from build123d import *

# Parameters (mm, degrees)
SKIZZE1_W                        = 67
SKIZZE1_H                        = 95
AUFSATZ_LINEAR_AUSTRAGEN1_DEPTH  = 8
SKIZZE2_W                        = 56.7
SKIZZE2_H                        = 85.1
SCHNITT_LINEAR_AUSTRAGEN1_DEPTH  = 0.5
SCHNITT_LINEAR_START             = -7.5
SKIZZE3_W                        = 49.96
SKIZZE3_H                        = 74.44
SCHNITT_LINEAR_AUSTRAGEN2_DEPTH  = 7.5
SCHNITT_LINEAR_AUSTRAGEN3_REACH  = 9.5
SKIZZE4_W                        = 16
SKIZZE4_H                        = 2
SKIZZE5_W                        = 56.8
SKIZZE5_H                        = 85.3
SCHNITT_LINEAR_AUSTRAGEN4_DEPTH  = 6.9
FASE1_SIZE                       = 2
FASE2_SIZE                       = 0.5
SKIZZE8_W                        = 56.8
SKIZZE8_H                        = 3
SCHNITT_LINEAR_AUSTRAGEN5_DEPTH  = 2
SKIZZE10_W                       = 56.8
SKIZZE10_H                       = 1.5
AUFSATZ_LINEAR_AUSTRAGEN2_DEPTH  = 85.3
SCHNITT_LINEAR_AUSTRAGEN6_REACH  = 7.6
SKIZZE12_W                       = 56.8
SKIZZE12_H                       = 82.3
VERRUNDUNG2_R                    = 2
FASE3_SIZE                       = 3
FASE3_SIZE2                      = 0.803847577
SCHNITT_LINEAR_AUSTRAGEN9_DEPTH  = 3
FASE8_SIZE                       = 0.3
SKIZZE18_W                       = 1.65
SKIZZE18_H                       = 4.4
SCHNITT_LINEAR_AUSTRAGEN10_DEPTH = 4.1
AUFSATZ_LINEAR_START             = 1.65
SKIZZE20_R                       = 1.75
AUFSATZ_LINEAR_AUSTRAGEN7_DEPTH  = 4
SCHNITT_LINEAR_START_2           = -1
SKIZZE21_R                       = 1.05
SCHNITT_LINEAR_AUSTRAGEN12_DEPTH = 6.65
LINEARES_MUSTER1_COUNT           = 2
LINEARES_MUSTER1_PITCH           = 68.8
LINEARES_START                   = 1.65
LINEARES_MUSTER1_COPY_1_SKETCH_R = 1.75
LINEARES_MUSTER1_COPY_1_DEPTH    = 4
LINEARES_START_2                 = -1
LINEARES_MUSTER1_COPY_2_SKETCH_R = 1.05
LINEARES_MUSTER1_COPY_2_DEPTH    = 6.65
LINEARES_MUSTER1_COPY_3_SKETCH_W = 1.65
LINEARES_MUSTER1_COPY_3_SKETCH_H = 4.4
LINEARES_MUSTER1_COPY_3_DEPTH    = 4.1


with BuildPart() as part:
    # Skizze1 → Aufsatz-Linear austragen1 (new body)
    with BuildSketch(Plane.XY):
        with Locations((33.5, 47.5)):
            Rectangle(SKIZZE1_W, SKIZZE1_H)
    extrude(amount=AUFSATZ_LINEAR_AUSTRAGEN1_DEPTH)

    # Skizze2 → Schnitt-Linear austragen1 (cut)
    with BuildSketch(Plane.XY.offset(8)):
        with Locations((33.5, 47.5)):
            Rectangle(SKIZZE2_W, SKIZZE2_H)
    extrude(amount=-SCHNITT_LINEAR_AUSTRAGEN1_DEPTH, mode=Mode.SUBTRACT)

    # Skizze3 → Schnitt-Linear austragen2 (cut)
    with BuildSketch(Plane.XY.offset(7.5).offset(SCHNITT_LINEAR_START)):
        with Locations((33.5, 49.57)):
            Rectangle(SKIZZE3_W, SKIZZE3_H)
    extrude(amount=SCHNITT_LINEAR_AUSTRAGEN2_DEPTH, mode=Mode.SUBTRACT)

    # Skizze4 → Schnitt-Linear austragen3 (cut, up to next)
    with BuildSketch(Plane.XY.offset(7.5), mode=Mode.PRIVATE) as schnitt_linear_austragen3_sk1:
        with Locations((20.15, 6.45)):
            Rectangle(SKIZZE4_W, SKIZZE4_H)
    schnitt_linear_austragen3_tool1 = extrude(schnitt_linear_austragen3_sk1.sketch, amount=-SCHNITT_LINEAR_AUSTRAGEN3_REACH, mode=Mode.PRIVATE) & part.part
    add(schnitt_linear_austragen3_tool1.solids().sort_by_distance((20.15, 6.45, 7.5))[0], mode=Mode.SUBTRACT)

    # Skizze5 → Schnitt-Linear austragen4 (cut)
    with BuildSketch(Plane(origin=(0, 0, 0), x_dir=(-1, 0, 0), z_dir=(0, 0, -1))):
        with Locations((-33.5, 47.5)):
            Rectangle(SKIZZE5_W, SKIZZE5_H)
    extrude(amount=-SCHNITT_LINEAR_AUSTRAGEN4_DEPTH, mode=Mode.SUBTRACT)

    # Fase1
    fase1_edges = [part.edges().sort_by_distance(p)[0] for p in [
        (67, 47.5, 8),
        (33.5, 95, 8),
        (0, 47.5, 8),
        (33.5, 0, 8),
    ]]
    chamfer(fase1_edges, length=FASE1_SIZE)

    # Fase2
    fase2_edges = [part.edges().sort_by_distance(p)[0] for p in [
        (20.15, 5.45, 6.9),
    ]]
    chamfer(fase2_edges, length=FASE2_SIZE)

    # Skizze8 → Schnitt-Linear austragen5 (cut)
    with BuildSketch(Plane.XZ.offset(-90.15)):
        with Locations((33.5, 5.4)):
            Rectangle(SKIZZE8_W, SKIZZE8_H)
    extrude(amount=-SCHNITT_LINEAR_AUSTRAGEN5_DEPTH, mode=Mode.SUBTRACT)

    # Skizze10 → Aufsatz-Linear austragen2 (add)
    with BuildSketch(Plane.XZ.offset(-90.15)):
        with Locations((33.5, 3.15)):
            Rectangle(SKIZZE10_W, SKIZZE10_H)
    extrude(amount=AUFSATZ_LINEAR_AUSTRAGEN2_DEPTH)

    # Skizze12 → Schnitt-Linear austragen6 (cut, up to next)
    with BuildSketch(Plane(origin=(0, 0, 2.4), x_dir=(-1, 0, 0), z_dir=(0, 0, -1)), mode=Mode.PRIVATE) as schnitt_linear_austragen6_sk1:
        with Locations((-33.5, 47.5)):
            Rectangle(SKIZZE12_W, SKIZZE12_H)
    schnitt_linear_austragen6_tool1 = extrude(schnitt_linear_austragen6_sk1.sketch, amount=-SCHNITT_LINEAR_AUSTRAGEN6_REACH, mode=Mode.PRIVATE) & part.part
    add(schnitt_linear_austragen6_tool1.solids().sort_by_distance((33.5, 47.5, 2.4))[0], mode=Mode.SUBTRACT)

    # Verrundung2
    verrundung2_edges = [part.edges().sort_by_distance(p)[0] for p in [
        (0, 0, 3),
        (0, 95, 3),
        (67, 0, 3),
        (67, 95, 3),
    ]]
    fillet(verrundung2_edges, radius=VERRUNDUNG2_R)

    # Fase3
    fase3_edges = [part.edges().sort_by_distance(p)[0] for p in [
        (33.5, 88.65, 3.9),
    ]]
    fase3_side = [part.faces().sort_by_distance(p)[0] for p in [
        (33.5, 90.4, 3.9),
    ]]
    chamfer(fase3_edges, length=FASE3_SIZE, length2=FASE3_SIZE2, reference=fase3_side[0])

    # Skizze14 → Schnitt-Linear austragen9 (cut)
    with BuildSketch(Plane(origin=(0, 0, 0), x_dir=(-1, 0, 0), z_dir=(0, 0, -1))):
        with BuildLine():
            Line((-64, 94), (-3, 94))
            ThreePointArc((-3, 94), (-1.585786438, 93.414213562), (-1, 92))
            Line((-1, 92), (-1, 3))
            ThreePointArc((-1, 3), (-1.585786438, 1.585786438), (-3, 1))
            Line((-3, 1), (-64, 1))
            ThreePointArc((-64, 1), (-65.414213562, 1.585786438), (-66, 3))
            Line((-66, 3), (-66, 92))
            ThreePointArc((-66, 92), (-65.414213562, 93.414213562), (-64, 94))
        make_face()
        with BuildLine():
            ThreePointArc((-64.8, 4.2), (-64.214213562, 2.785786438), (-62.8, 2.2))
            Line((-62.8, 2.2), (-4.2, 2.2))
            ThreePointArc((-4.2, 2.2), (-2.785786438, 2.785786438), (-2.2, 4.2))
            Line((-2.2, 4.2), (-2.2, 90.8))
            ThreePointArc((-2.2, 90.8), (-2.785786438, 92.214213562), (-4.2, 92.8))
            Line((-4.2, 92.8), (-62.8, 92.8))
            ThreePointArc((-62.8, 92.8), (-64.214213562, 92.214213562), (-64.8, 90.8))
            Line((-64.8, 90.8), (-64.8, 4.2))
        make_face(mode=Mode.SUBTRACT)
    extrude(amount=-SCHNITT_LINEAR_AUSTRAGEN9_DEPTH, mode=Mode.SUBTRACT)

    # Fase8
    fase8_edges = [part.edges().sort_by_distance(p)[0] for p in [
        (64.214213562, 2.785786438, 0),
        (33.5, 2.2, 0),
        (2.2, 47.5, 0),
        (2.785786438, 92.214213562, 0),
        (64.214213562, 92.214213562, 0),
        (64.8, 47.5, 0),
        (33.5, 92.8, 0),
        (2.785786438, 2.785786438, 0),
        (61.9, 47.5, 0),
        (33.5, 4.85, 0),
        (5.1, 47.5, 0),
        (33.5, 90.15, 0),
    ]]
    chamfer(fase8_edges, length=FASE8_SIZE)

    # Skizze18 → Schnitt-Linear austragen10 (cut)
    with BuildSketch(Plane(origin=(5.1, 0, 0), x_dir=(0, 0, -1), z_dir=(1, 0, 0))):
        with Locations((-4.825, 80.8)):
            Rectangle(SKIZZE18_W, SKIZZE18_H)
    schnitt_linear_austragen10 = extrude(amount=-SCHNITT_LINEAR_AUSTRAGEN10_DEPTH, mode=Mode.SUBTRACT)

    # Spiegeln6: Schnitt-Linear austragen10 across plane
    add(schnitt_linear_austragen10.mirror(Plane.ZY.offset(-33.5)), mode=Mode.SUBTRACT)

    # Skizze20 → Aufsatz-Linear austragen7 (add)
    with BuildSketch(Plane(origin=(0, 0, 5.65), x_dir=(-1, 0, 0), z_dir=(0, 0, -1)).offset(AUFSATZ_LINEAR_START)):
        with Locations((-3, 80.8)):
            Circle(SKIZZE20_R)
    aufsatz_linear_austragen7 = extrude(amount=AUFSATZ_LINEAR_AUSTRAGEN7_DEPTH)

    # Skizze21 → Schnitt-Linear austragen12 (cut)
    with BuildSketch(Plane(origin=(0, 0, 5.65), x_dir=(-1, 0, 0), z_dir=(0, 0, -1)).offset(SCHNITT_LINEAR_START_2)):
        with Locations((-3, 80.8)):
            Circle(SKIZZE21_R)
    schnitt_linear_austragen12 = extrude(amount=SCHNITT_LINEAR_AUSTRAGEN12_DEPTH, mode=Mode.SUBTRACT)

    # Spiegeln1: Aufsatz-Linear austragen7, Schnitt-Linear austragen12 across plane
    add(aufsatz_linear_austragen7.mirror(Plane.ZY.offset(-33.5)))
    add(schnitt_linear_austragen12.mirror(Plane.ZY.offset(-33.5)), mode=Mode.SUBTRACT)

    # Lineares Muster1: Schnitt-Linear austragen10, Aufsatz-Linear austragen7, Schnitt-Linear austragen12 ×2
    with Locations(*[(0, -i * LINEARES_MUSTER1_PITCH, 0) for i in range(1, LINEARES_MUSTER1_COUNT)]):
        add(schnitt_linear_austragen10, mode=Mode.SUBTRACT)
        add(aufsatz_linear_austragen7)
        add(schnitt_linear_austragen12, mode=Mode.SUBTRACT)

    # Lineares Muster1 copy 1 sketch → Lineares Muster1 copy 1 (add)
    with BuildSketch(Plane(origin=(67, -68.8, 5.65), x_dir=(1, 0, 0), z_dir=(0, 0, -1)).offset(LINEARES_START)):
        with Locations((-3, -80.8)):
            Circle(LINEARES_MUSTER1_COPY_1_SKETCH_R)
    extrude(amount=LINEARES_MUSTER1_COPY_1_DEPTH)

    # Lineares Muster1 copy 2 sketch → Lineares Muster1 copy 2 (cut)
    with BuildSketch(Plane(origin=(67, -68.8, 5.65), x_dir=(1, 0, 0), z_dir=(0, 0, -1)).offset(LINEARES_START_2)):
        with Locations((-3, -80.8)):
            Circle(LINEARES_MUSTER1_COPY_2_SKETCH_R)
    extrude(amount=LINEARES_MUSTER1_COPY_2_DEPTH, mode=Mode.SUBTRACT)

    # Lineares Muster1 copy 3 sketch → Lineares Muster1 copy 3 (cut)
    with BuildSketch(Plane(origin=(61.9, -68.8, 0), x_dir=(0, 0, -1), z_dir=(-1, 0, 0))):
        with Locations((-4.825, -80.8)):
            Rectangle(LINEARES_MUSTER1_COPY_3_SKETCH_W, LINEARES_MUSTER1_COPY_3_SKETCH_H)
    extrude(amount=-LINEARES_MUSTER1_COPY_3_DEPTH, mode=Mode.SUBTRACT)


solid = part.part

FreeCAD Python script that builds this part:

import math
import FreeCAD as App
import Part
import Sketcher
from FreeCAD import Vector
Q = App.Units.Quantity


def edges_at(feature, points):
    """Names of the edges that pass closest to the given points."""
    edges = feature.Shape.Edges
    near = lambda p: min(range(len(edges)), key=lambda i: edges[i].distToShape(Part.Vertex(*p))[0])
    return sorted({f"Edge{near(p) + 1}" for p in points})

doc = App.newDocument("Part")
params = doc.addObject("Spreadsheet::Sheet", "Params")
for row, (alias, value) in enumerate([
    ("sketch1_width", "67 mm"),
    ("sketch1_height", "95 mm"),
    ("pad1_length", "8 mm"),
    ("sketch2_width", "56.7 mm"),
    ("sketch2_height", "85.1 mm"),
    ("pocket1_length", "0.5 mm"),
    ("sketch3_width", "49.96 mm"),
    ("sketch3_height", "74.44 mm"),
    ("pocket2_length", "7.5 mm"),
    ("sketch4_width", "16 mm"),
    ("sketch4_height", "2 mm"),
    ("sketch5_width", "56.8 mm"),
    ("sketch5_height", "85.3 mm"),
    ("pocket4_length", "6.9 mm"),
    ("chamfer_size", "2 mm"),
    ("chamfer2_size", "0.5 mm"),
    ("sketch6_height", "3 mm"),
    ("sketch6_width", "56.8 mm"),
    ("pocket5_length", "2 mm"),
    ("sketch7_width", "56.8 mm"),
    ("sketch7_height", "1.5 mm"),
    ("pad2_length", "85.3 mm"),
    ("sketch8_width", "56.8 mm"),
    ("sketch8_height", "82.3 mm"),
    ("fillet_radius", "2 mm"),
    ("chamfer3_size", "3 mm"),
    ("chamfer3_size2", "0.803848 mm"),
    ("sketch9_radius", "2 mm"),
    ("sketch9_width", "61 mm"),
    ("sketch9_height", "89 mm"),
    ("sketch9_width2", "58.6 mm"),
    ("sketch9_height2", "86.6 mm"),
    ("pocket7_length", "3 mm"),
    ("chamfer4_size", "0.3 mm"),
    ("sketch10_width", "4.4 mm"),
    ("sketch10_height", "1.65 mm"),
    ("pocket8_length", "4.1 mm"),
    ("sketch11_diameter", "3.5 mm"),
    ("pad3_length", "4 mm"),
    ("sketch12_diameter", "2.1 mm"),
    ("pocket9_length", "6.65 mm"),
    ("linearpattern_pitch", "68.8 mm"),
    ("sketch13_diameter", "3.5 mm"),
    ("pad4_length", "4 mm"),
    ("sketch14_diameter", "2.1 mm"),
    ("pocket10_length", "6.65 mm"),
    ("sketch15_width", "4.4 mm"),
    ("sketch15_height", "1.65 mm"),
    ("pocket11_length", "4.1 mm"),
], start=1):
    params.set(f"A{row}", alias)
    params.set(f"B{row}", "=" + value)
    params.setAlias(f"B{row}", alias)

body = doc.addObject("PartDesign::Body", "Body")

# Sketch on XY plane
sketch1 = doc.addObject("Sketcher::SketchObject", "Sketch")
body.addObject(sketch1)
sketch1.AttachmentSupport = (doc.XY_Plane, [""])
sketch1.MapMode = "FlatFace"
sketch1.addGeometry(Part.LineSegment(Vector(0, 95, 0), Vector(0, 0, 0)), False)
sketch1.addGeometry(Part.LineSegment(Vector(0, 0, 0), Vector(67, 0, 0)), False)
sketch1.addGeometry(Part.LineSegment(Vector(67, 0, 0), Vector(67, 95, 0)), False)
sketch1.addGeometry(Part.LineSegment(Vector(67, 95, 0), Vector(0, 95, 0)), False)
sketch1.addConstraint(Sketcher.Constraint("Coincident", 0, 2, 1, 1))
sketch1.addConstraint(Sketcher.Constraint("Coincident", 1, 2, 2, 1))
sketch1.addConstraint(Sketcher.Constraint("Coincident", 2, 2, 3, 1))
sketch1.addConstraint(Sketcher.Constraint("Coincident", 3, 2, 0, 1))
sketch1.addConstraint(Sketcher.Constraint("Vertical", 0))
sketch1.addConstraint(Sketcher.Constraint("Horizontal", 1))
sketch1.addConstraint(Sketcher.Constraint("Vertical", 2))
sketch1.addConstraint(Sketcher.Constraint("Horizontal", 3))
sketch1.addConstraint(Sketcher.Constraint("Coincident", 0, 2, -1, 1))
sketch1.addConstraint(Sketcher.Constraint("DistanceX", 1, 1, 1, 2, Q("67 mm")))
sketch1.addConstraint(Sketcher.Constraint("DistanceY", 0, 2, 0, 1, Q("95 mm")))
sketch1.setExpression("Constraints[9]", "Params.sketch1_width")
sketch1.setExpression("Constraints[10]", "Params.sketch1_height")
pad1 = doc.addObject("PartDesign::Pad", "Pad")
body.addObject(pad1)
pad1.Profile = sketch1
pad1.setExpression("Length", "Params.pad1_length")

# Sketch on XY plane
sketch2 = doc.addObject("Sketcher::SketchObject", "Sketch001")
body.addObject(sketch2)
sketch2.AttachmentSupport = (doc.XY_Plane, [""])
sketch2.MapMode = "FlatFace"
sketch2.AttachmentOffset = App.Placement(Vector(0, 0, 8), App.Rotation())
sketch2.addGeometry(Part.LineSegment(Vector(5.15, 90.05, 0), Vector(5.15, 4.95, 0)), False)
sketch2.addGeometry(Part.LineSegment(Vector(5.15, 4.95, 0), Vector(61.85, 4.95, 0)), False)
sketch2.addGeometry(Part.LineSegment(Vector(61.85, 4.95, 0), Vector(61.85, 90.05, 0)), False)
sketch2.addGeometry(Part.LineSegment(Vector(61.85, 90.05, 0), Vector(5.15, 90.05, 0)), False)
sketch2.addConstraint(Sketcher.Constraint("Coincident", 0, 2, 1, 1))
sketch2.addConstraint(Sketcher.Constraint("Coincident", 1, 2, 2, 1))
sketch2.addConstraint(Sketcher.Constraint("Coincident", 2, 2, 3, 1))
sketch2.addConstraint(Sketcher.Constraint("Coincident", 3, 2, 0, 1))
sketch2.addConstraint(Sketcher.Constraint("Vertical", 0))
sketch2.addConstraint(Sketcher.Constraint("Horizontal", 1))
sketch2.addConstraint(Sketcher.Constraint("Vertical", 2))
sketch2.addConstraint(Sketcher.Constraint("Horizontal", 3))
sketch2.addConstraint(Sketcher.Constraint("DistanceX", 1, 1, 1, 2, Q("56.7 mm")))
sketch2.addConstraint(Sketcher.Constraint("DistanceY", 0, 2, 0, 1, Q("85.1 mm")))
sketch2.addConstraint(Sketcher.Constraint("DistanceX", -1, 1, 0, 2, Q("5.15 mm")))
sketch2.addConstraint(Sketcher.Constraint("DistanceY", -1, 1, 0, 2, Q("4.95 mm")))
sketch2.setExpression("Constraints[8]", "Params.sketch2_width")
sketch2.setExpression("Constraints[9]", "Params.sketch2_height")
pocket1 = doc.addObject("PartDesign::Pocket", "Pocket")
body.addObject(pocket1)
pocket1.Profile = sketch2
pocket1.setExpression("Length", "Params.pocket1_length")

# Sketch on XY plane
sketch3 = doc.addObject("Sketcher::SketchObject", "Sketch002")
body.addObject(sketch3)
sketch3.AttachmentSupport = (doc.XY_Plane, [""])
sketch3.MapMode = "FlatFace"
sketch3.addGeometry(Part.LineSegment(Vector(8.52, 86.79, 0), Vector(8.52, 12.35, 0)), False)
sketch3.addGeometry(Part.LineSegment(Vector(8.52, 12.35, 0), Vector(58.48, 12.35, 0)), False)
sketch3.addGeometry(Part.LineSegment(Vector(58.48, 12.35, 0), Vector(58.48, 86.79, 0)), False)
sketch3.addGeometry(Part.LineSegment(Vector(58.48, 86.79, 0), Vector(8.52, 86.79, 0)), False)
sketch3.addConstraint(Sketcher.Constraint("Coincident", 0, 2, 1, 1))
sketch3.addConstraint(Sketcher.Constraint("Coincident", 1, 2, 2, 1))
sketch3.addConstraint(Sketcher.Constraint("Coincident", 2, 2, 3, 1))
sketch3.addConstraint(Sketcher.Constraint("Coincident", 3, 2, 0, 1))
sketch3.addConstraint(Sketcher.Constraint("Vertical", 0))
sketch3.addConstraint(Sketcher.Constraint("Horizontal", 1))
sketch3.addConstraint(Sketcher.Constraint("Vertical", 2))
sketch3.addConstraint(Sketcher.Constraint("Horizontal", 3))
sketch3.addConstraint(Sketcher.Constraint("DistanceX", 1, 1, 1, 2, Q("49.96 mm")))
sketch3.addConstraint(Sketcher.Constraint("DistanceY", 0, 2, 0, 1, Q("74.44 mm")))
sketch3.addConstraint(Sketcher.Constraint("DistanceX", -1, 1, 0, 2, Q("8.52 mm")))
sketch3.addConstraint(Sketcher.Constraint("DistanceY", -1, 1, 0, 2, Q("12.35 mm")))
sketch3.setExpression("Constraints[8]", "Params.sketch3_width")
sketch3.setExpression("Constraints[9]", "Params.sketch3_height")
pocket2 = doc.addObject("PartDesign::Pocket", "Pocket001")
body.addObject(pocket2)
pocket2.Profile = sketch3
pocket2.setExpression("Length", "Params.pocket2_length")
pocket2.Reversed = True

# Sketch on XY plane
sketch4 = doc.addObject("Sketcher::SketchObject", "Sketch003")
body.addObject(sketch4)
sketch4.AttachmentSupport = (doc.XY_Plane, [""])
sketch4.MapMode = "FlatFace"
sketch4.AttachmentOffset = App.Placement(Vector(0, 0, 7.5), App.Rotation())
sketch4.addGeometry(Part.LineSegment(Vector(12.15, 7.45, 0), Vector(12.15, 5.45, 0)), False)
sketch4.addGeometry(Part.LineSegment(Vector(12.15, 5.45, 0), Vector(28.15, 5.45, 0)), False)
sketch4.addGeometry(Part.LineSegment(Vector(28.15, 5.45, 0), Vector(28.15, 7.45, 0)), False)
sketch4.addGeometry(Part.LineSegment(Vector(28.15, 7.45, 0), Vector(12.15, 7.45, 0)), False)
sketch4.addConstraint(Sketcher.Constraint("Coincident", 0, 2, 1, 1))
sketch4.addConstraint(Sketcher.Constraint("Coincident", 1, 2, 2, 1))
sketch4.addConstraint(Sketcher.Constraint("Coincident", 2, 2, 3, 1))
sketch4.addConstraint(Sketcher.Constraint("Coincident", 3, 2, 0, 1))
sketch4.addConstraint(Sketcher.Constraint("Vertical", 0))
sketch4.addConstraint(Sketcher.Constraint("Horizontal", 1))
sketch4.addConstraint(Sketcher.Constraint("Vertical", 2))
sketch4.addConstraint(Sketcher.Constraint("Horizontal", 3))
sketch4.addConstraint(Sketcher.Constraint("DistanceX", 1, 1, 1, 2, Q("16 mm")))
sketch4.addConstraint(Sketcher.Constraint("DistanceY", 0, 2, 0, 1, Q("2 mm")))
sketch4.addConstraint(Sketcher.Constraint("DistanceX", -1, 1, 0, 2, Q("12.15 mm")))
sketch4.addConstraint(Sketcher.Constraint("DistanceY", -1, 1, 0, 2, Q("5.45 mm")))
sketch4.setExpression("Constraints[8]", "Params.sketch4_width")
sketch4.setExpression("Constraints[9]", "Params.sketch4_height")
pocket3 = doc.addObject("PartDesign::Pocket", "Pocket002")
body.addObject(pocket3)
pocket3.Profile = sketch4
pocket3.Type = "UpToFirst"

# Sketch on XY plane
sketch5 = doc.addObject("Sketcher::SketchObject", "Sketch004")
body.addObject(sketch5)
sketch5.AttachmentSupport = (doc.XY_Plane, [""])
sketch5.MapMode = "FlatFace"
sketch5.addGeometry(Part.LineSegment(Vector(61.9, 90.15, 0), Vector(61.9, 4.85, 0)), False)
sketch5.addGeometry(Part.LineSegment(Vector(61.9, 4.85, 0), Vector(5.1, 4.85, 0)), False)
sketch5.addGeometry(Part.LineSegment(Vector(5.1, 4.85, 0), Vector(5.1, 90.15, 0)), False)
sketch5.addGeometry(Part.LineSegment(Vector(5.1, 90.15, 0), Vector(61.9, 90.15, 0)), False)
sketch5.addConstraint(Sketcher.Constraint("Coincident", 0, 2, 1, 1))
sketch5.addConstraint(Sketcher.Constraint("Coincident", 1, 2, 2, 1))
sketch5.addConstraint(Sketcher.Constraint("Coincident", 2, 2, 3, 1))
sketch5.addConstraint(Sketcher.Constraint("Coincident", 3, 2, 0, 1))
sketch5.addConstraint(Sketcher.Constraint("Vertical", 0))
sketch5.addConstraint(Sketcher.Constraint("Horizontal", 1))
sketch5.addConstraint(Sketcher.Constraint("Vertical", 2))
sketch5.addConstraint(Sketcher.Constraint("Horizontal", 3))
sketch5.addConstraint(Sketcher.Constraint("DistanceX", 1, 2, 1, 1, Q("56.8 mm")))
sketch5.addConstraint(Sketcher.Constraint("DistanceY", 0, 2, 0, 1, Q("85.3 mm")))
sketch5.addConstraint(Sketcher.Constraint("DistanceX", -1, 1, 0, 2, Q("61.9 mm")))
sketch5.addConstraint(Sketcher.Constraint("DistanceY", -1, 1, 0, 2, Q("4.85 mm")))
sketch5.setExpression("Constraints[8]", "Params.sketch5_width")
sketch5.setExpression("Constraints[9]", "Params.sketch5_height")
pocket4 = doc.addObject("PartDesign::Pocket", "Pocket003")
body.addObject(pocket4)
pocket4.Profile = sketch5
pocket4.setExpression("Length", "Params.pocket4_length")
pocket4.Reversed = True
doc.recompute()

chamfer = doc.addObject("PartDesign::Chamfer", "Chamfer")
body.addObject(chamfer)
chamfer.Base = (pocket4, edges_at(pocket4, [
    (67, 47.5, 8),
    (33.5, 95, 8),
    (0, 47.5, 8),
    (33.5, 0, 8),
]))
chamfer.setExpression("Size", "Params.chamfer_size")
doc.recompute()

chamfer2 = doc.addObject("PartDesign::Chamfer", "Chamfer001")
body.addObject(chamfer2)
chamfer2.Base = (chamfer, edges_at(chamfer, [(20.15, 5.45, 6.9)]))
chamfer2.setExpression("Size", "Params.chamfer2_size")

# Sketch on XZ plane
sketch6 = doc.addObject("Sketcher::SketchObject", "Sketch005")
body.addObject(sketch6)
sketch6.AttachmentSupport = (doc.XZ_Plane, [""])
sketch6.MapMode = "FlatFace"
sketch6.AttachmentOffset = App.Placement(Vector(0, 0, -90.15), App.Rotation())
sketch6.addGeometry(Part.LineSegment(Vector(5.1, 6.9, 0), Vector(5.1, 3.9, 0)), False)
sketch6.addGeometry(Part.LineSegment(Vector(5.1, 3.9, 0), Vector(61.9, 3.9, 0)), False)
sketch6.addGeometry(Part.LineSegment(Vector(61.9, 3.9, 0), Vector(61.9, 6.9, 0)), False)
sketch6.addGeometry(Part.LineSegment(Vector(61.9, 6.9, 0), Vector(5.1, 6.9, 0)), False)
sketch6.addConstraint(Sketcher.Constraint("Coincident", 0, 2, 1, 1))
sketch6.addConstraint(Sketcher.Constraint("Coincident", 1, 2, 2, 1))
sketch6.addConstraint(Sketcher.Constraint("Coincident", 2, 2, 3, 1))
sketch6.addConstraint(Sketcher.Constraint("Coincident", 3, 2, 0, 1))
sketch6.addConstraint(Sketcher.Constraint("Vertical", 0))
sketch6.addConstraint(Sketcher.Constraint("Horizontal", 1))
sketch6.addConstraint(Sketcher.Constraint("Vertical", 2))
sketch6.addConstraint(Sketcher.Constraint("Horizontal", 3))
sketch6.addConstraint(Sketcher.Constraint("DistanceY", 0, 2, 0, 1, Q("3 mm")))
sketch6.addConstraint(Sketcher.Constraint("DistanceX", 1, 1, 1, 2, Q("56.8 mm")))
sketch6.addConstraint(Sketcher.Constraint("DistanceX", -1, 1, 0, 2, Q("5.1 mm")))
sketch6.addConstraint(Sketcher.Constraint("DistanceY", -1, 1, 0, 2, Q("3.9 mm")))
sketch6.setExpression("Constraints[8]", "Params.sketch6_height")
sketch6.setExpression("Constraints[9]", "Params.sketch6_width")
pocket5 = doc.addObject("PartDesign::Pocket", "Pocket004")
body.addObject(pocket5)
pocket5.Profile = sketch6
pocket5.setExpression("Length", "Params.pocket5_length")

# Sketch on XZ plane
sketch7 = doc.addObject("Sketcher::SketchObject", "Sketch006")
body.addObject(sketch7)
sketch7.AttachmentSupport = (doc.XZ_Plane, [""])
sketch7.MapMode = "FlatFace"
sketch7.AttachmentOffset = App.Placement(Vector(0, 0, -90.15), App.Rotation())
sketch7.addGeometry(Part.LineSegment(Vector(5.1, 3.9, 0), Vector(5.1, 2.4, 0)), False)
sketch7.addGeometry(Part.LineSegment(Vector(5.1, 2.4, 0), Vector(61.9, 2.4, 0)), False)
sketch7.addGeometry(Part.LineSegment(Vector(61.9, 2.4, 0), Vector(61.9, 3.9, 0)), False)
sketch7.addGeometry(Part.LineSegment(Vector(61.9, 3.9, 0), Vector(5.1, 3.9, 0)), False)
sketch7.addConstraint(Sketcher.Constraint("Coincident", 0, 2, 1, 1))
sketch7.addConstraint(Sketcher.Constraint("Coincident", 1, 2, 2, 1))
sketch7.addConstraint(Sketcher.Constraint("Coincident", 2, 2, 3, 1))
sketch7.addConstraint(Sketcher.Constraint("Coincident", 3, 2, 0, 1))
sketch7.addConstraint(Sketcher.Constraint("Vertical", 0))
sketch7.addConstraint(Sketcher.Constraint("Horizontal", 1))
sketch7.addConstraint(Sketcher.Constraint("Vertical", 2))
sketch7.addConstraint(Sketcher.Constraint("Horizontal", 3))
sketch7.addConstraint(Sketcher.Constraint("DistanceX", 1, 1, 1, 2, Q("56.8 mm")))
sketch7.addConstraint(Sketcher.Constraint("DistanceY", 0, 2, 0, 1, Q("1.5 mm")))
sketch7.addConstraint(Sketcher.Constraint("DistanceX", -1, 1, 0, 2, Q("5.1 mm")))
sketch7.addConstraint(Sketcher.Constraint("DistanceY", -1, 1, 0, 2, Q("2.4 mm")))
sketch7.setExpression("Constraints[8]", "Params.sketch7_width")
sketch7.setExpression("Constraints[9]", "Params.sketch7_height")
pad2 = doc.addObject("PartDesign::Pad", "Pad001")
body.addObject(pad2)
pad2.Profile = sketch7
pad2.setExpression("Length", "Params.pad2_length")

# Sketch on XY plane
sketch8 = doc.addObject("Sketcher::SketchObject", "Sketch007")
body.addObject(sketch8)
sketch8.AttachmentSupport = (doc.XY_Plane, [""])
sketch8.MapMode = "FlatFace"
sketch8.AttachmentOffset = App.Placement(Vector(0, 0, 2.4), App.Rotation())
sketch8.addGeometry(Part.LineSegment(Vector(61.9, 88.65, 0), Vector(61.9, 6.35, 0)), False)
sketch8.addGeometry(Part.LineSegment(Vector(61.9, 6.35, 0), Vector(5.1, 6.35, 0)), False)
sketch8.addGeometry(Part.LineSegment(Vector(5.1, 6.35, 0), Vector(5.1, 88.65, 0)), False)
sketch8.addGeometry(Part.LineSegment(Vector(5.1, 88.65, 0), Vector(61.9, 88.65, 0)), False)
sketch8.addConstraint(Sketcher.Constraint("Coincident", 0, 2, 1, 1))
sketch8.addConstraint(Sketcher.Constraint("Coincident", 1, 2, 2, 1))
sketch8.addConstraint(Sketcher.Constraint("Coincident", 2, 2, 3, 1))
sketch8.addConstraint(Sketcher.Constraint("Coincident", 3, 2, 0, 1))
sketch8.addConstraint(Sketcher.Constraint("Vertical", 0))
sketch8.addConstraint(Sketcher.Constraint("Horizontal", 1))
sketch8.addConstraint(Sketcher.Constraint("Vertical", 2))
sketch8.addConstraint(Sketcher.Constraint("Horizontal", 3))
sketch8.addConstraint(Sketcher.Constraint("DistanceX", 1, 2, 1, 1, Q("56.8 mm")))
sketch8.addConstraint(Sketcher.Constraint("DistanceY", 0, 2, 0, 1, Q("82.3 mm")))
sketch8.addConstraint(Sketcher.Constraint("DistanceX", -1, 1, 0, 2, Q("61.9 mm")))
sketch8.addConstraint(Sketcher.Constraint("DistanceY", -1, 1, 0, 2, Q("6.35 mm")))
sketch8.setExpression("Constraints[8]", "Params.sketch8_width")
sketch8.setExpression("Constraints[9]", "Params.sketch8_height")
pocket6 = doc.addObject("PartDesign::Pocket", "Pocket005")
body.addObject(pocket6)
pocket6.Profile = sketch8
pocket6.Type = "UpToFirst"
pocket6.Reversed = True
doc.recompute()

fillet = doc.addObject("PartDesign::Fillet", "Fillet")
body.addObject(fillet)
fillet.Base = (pocket6, edges_at(pocket6, [
    (0, 0, 3),
    (0, 95, 3),
    (67, 0, 3),
    (67, 95, 3),
]))
fillet.setExpression("Radius", "Params.fillet_radius")
doc.recompute()

chamfer3 = doc.addObject("PartDesign::Chamfer", "Chamfer002")
body.addObject(chamfer3)
chamfer3.Base = (fillet, edges_at(fillet, [(33.5, 88.65, 3.9)]))
chamfer3.ChamferType = "Two distances"
chamfer3.setExpression("Size", "Params.chamfer3_size")
chamfer3.setExpression("Size2", "Params.chamfer3_size2")
chamfer3.FlipDirection = True

# Sketch on XY plane
sketch9 = doc.addObject("Sketcher::SketchObject", "Sketch008")
body.addObject(sketch9)
sketch9.AttachmentSupport = (doc.XY_Plane, [""])
sketch9.MapMode = "FlatFace"
sketch9.addGeometry(Part.LineSegment(Vector(3, 94, 0), Vector(64, 94, 0)), False)
sketch9.addGeometry(Part.ArcOfCircle(Part.Circle(Vector(64, 92, 0), Vector(0, 0, 1), 2), math.radians(0), math.radians(90)), False)
sketch9.addGeometry(Part.LineSegment(Vector(66, 92, 0), Vector(66, 3, 0)), False)
sketch9.addGeometry(Part.ArcOfCircle(Part.Circle(Vector(64, 3, 0), Vector(0, 0, 1), 2), math.radians(-90), math.radians(0)), False)
sketch9.addGeometry(Part.LineSegment(Vector(64, 1, 0), Vector(3, 1, 0)), False)
sketch9.addGeometry(Part.ArcOfCircle(Part.Circle(Vector(3, 3, 0), Vector(0, 0, 1), 2), math.radians(-180), math.radians(-90)), False)
sketch9.addGeometry(Part.LineSegment(Vector(1, 3, 0), Vector(1, 92, 0)), False)
sketch9.addGeometry(Part.ArcOfCircle(Part.Circle(Vector(3, 92, 0), Vector(0, 0, 1), 2), math.radians(90), math.radians(180)), False)
sketch9.addGeometry(Part.LineSegment(Vector(64.8, 4.2, 0), Vector(64.8, 90.8, 0)), False)
sketch9.addGeometry(Part.ArcOfCircle(Part.Circle(Vector(62.8, 90.8, 0), Vector(0, 0, 1), 2), math.radians(0), math.radians(90)), False)
sketch9.addGeometry(Part.LineSegment(Vector(62.8, 92.8, 0), Vector(4.2, 92.8, 0)), False)
sketch9.addGeometry(Part.ArcOfCircle(Part.Circle(Vector(4.2, 90.8, 0), Vector(0, 0, 1), 2), math.radians(90), math.radians(180)), False)
sketch9.addGeometry(Part.LineSegment(Vector(2.2, 90.8, 0), Vector(2.2, 4.2, 0)), False)
sketch9.addGeometry(Part.ArcOfCircle(Part.Circle(Vector(4.2, 4.2, 0), Vector(0, 0, 1), 2), math.radians(-180), math.radians(-90)), False)
sketch9.addGeometry(Part.LineSegment(Vector(4.2, 2.2, 0), Vector(62.8, 2.2, 0)), False)
sketch9.addGeometry(Part.ArcOfCircle(Part.Circle(Vector(62.8, 4.2, 0), Vector(0, 0, 1), 2), math.radians(-90), math.radians(0)), False)
sketch9.addConstraint(Sketcher.Constraint("Tangent", 0, 2, 1, 2))
sketch9.addConstraint(Sketcher.Constraint("Tangent", 1, 1, 2, 1))
sketch9.addConstraint(Sketcher.Constraint("Tangent", 2, 2, 3, 2))
sketch9.addConstraint(Sketcher.Constraint("Tangent", 3, 1, 4, 1))
sketch9.addConstraint(Sketcher.Constraint("Tangent", 4, 2, 5, 2))
sketch9.addConstraint(Sketcher.Constraint("Tangent", 5, 1, 6, 1))
sketch9.addConstraint(Sketcher.Constraint("Tangent", 6, 2, 7, 2))
sketch9.addConstraint(Sketcher.Constraint("Tangent", 7, 1, 0, 1))
sketch9.addConstraint(Sketcher.Constraint("Tangent", 8, 2, 9, 1))
sketch9.addConstraint(Sketcher.Constraint("Tangent", 9, 2, 10, 1))
sketch9.addConstraint(Sketcher.Constraint("Tangent", 10, 2, 11, 1))
sketch9.addConstraint(Sketcher.Constraint("Tangent", 11, 2, 12, 1))
sketch9.addConstraint(Sketcher.Constraint("Tangent", 12, 2, 13, 1))
sketch9.addConstraint(Sketcher.Constraint("Tangent", 13, 2, 14, 1))
sketch9.addConstraint(Sketcher.Constraint("Tangent", 14, 2, 15, 1))
sketch9.addConstraint(Sketcher.Constraint("Tangent", 15, 2, 8, 1))
sketch9.addConstraint(Sketcher.Constraint("Horizontal", 0))
sketch9.addConstraint(Sketcher.Constraint("Vertical", 2))
sketch9.addConstraint(Sketcher.Constraint("Horizontal", 4))
sketch9.addConstraint(Sketcher.Constraint("Vertical", 6))
sketch9.addConstraint(Sketcher.Constraint("Vertical", 8))
sketch9.addConstraint(Sketcher.Constraint("Horizontal", 10))
sketch9.addConstraint(Sketcher.Constraint("Vertical", 12))
sketch9.addConstraint(Sketcher.Constraint("Horizontal", 14))
sketch9.addConstraint(Sketcher.Constraint("Equal", 1, 3))
sketch9.addConstraint(Sketcher.Constraint("Equal", 3, 5))
sketch9.addConstraint(Sketcher.Constraint("Equal", 5, 7))
sketch9.addConstraint(Sketcher.Constraint("Equal", 7, 9))
sketch9.addConstraint(Sketcher.Constraint("Equal", 9, 11))
sketch9.addConstraint(Sketcher.Constraint("Equal", 11, 13))
sketch9.addConstraint(Sketcher.Constraint("Equal", 13, 15))
sketch9.addConstraint(Sketcher.Constraint("Radius", 1, Q("2 mm")))
sketch9.addConstraint(Sketcher.Constraint("DistanceX", 0, 1, 0, 2, Q("61 mm")))
sketch9.addConstraint(Sketcher.Constraint("DistanceY", 2, 2, 2, 1, Q("89 mm")))
sketch9.addConstraint(Sketcher.Constraint("DistanceX", 10, 2, 10, 1, Q("58.6 mm")))
sketch9.addConstraint(Sketcher.Constraint("DistanceY", 8, 1, 8, 2, Q("86.6 mm")))
sketch9.addConstraint(Sketcher.Constraint("DistanceX", -1, 1, 1, 3, Q("64 mm")))
sketch9.addConstraint(Sketcher.Constraint("DistanceY", -1, 1, 1, 3, Q("92 mm")))
sketch9.addConstraint(Sketcher.Constraint("DistanceX", -1, 1, 9, 3, Q("62.8 mm")))
sketch9.addConstraint(Sketcher.Constraint("DistanceY", -1, 1, 9, 3, Q("90.8 mm")))
sketch9.setExpression("Constraints[31]", "Params.sketch9_radius")
sketch9.setExpression("Constraints[32]", "Params.sketch9_width")
sketch9.setExpression("Constraints[33]", "Params.sketch9_height")
sketch9.setExpression("Constraints[34]", "Params.sketch9_width2")
sketch9.setExpression("Constraints[35]", "Params.sketch9_height2")
pocket7 = doc.addObject("PartDesign::Pocket", "Pocket006")
body.addObject(pocket7)
pocket7.Profile = sketch9
pocket7.setExpression("Length", "Params.pocket7_length")
pocket7.Reversed = True
doc.recompute()

chamfer4 = doc.addObject("PartDesign::Chamfer", "Chamfer003")
body.addObject(chamfer4)
chamfer4.Base = (pocket7, edges_at(pocket7, [
    (64.214, 2.786, 0),
    (33.5, 2.2, 0),
    (2.2, 47.5, 0),
    (2.786, 92.214, 0),
    (64.214, 92.214, 0),
    (64.8, 47.5, 0),
    (33.5, 92.8, 0),
    (2.786, 2.786, 0),
    (61.9, 47.5, 0),
    (33.5, 4.85, 0),
    (5.1, 47.5, 0),
    (33.5, 90.15, 0),
]))
chamfer4.setExpression("Size", "Params.chamfer4_size")

# Sketch on YZ plane
sketch10 = doc.addObject("Sketcher::SketchObject", "Sketch009")
body.addObject(sketch10)
sketch10.AttachmentSupport = (doc.YZ_Plane, [""])
sketch10.MapMode = "FlatFace"
sketch10.AttachmentOffset = App.Placement(Vector(0, 0, 5.1), App.Rotation())
sketch10.addGeometry(Part.LineSegment(Vector(83, 5.65, 0), Vector(78.6, 5.65, 0)), False)
sketch10.addGeometry(Part.LineSegment(Vector(78.6, 5.65, 0), Vector(78.6, 4, 0)), False)
sketch10.addGeometry(Part.LineSegment(Vector(78.6, 4, 0), Vector(83, 4, 0)), False)
sketch10.addGeometry(Part.LineSegment(Vector(83, 4, 0), Vector(83, 5.65, 0)), False)
sketch10.addConstraint(Sketcher.Constraint("Coincident", 0, 2, 1, 1))
sketch10.addConstraint(Sketcher.Constraint("Coincident", 1, 2, 2, 1))
sketch10.addConstraint(Sketcher.Constraint("Coincident", 2, 2, 3, 1))
sketch10.addConstraint(Sketcher.Constraint("Coincident", 3, 2, 0, 1))
sketch10.addConstraint(Sketcher.Constraint("Horizontal", 0))
sketch10.addConstraint(Sketcher.Constraint("Vertical", 1))
sketch10.addConstraint(Sketcher.Constraint("Horizontal", 2))
sketch10.addConstraint(Sketcher.Constraint("Vertical", 3))
sketch10.addConstraint(Sketcher.Constraint("DistanceX", 0, 2, 0, 1, Q("4.4 mm")))
sketch10.addConstraint(Sketcher.Constraint("DistanceY", -1, 1, 1, 2, Q("4 mm")))
sketch10.addConstraint(Sketcher.Constraint("DistanceX", -1, 1, 2, 2, Q("83 mm")))
sketch10.addConstraint(Sketcher.Constraint("DistanceY", 1, 2, 1, 1, Q("1.65 mm")))
sketch10.setExpression("Constraints[8]", "Params.sketch10_width")
sketch10.setExpression("Constraints[11]", "Params.sketch10_height")
pocket8 = doc.addObject("PartDesign::Pocket", "Pocket007")
body.addObject(pocket8)
pocket8.Profile = sketch10
pocket8.setExpression("Length", "Params.pocket8_length")
doc.recompute()

datumplane = doc.addObject("PartDesign::Plane", "DatumPlane")
body.addObject(datumplane)
datumplane.AttachmentSupport = (doc.YZ_Plane, [""])
datumplane.MapMode = "FlatFace"
datumplane.AttachmentOffset = App.Placement(Vector(0, 0, 33.5), App.Rotation())
mirrored = doc.addObject("PartDesign::Mirrored", "Mirrored")
body.addObject(mirrored)
mirrored.Originals = [pocket8]
mirrored.MirrorPlane = (datumplane, [""])
body.Tip = mirrored

# Sketch on XY plane
sketch11 = doc.addObject("Sketcher::SketchObject", "Sketch010")
body.addObject(sketch11)
sketch11.AttachmentSupport = (doc.XY_Plane, [""])
sketch11.MapMode = "FlatFace"
sketch11.AttachmentOffset = App.Placement(Vector(0, 0, 4), App.Rotation())
sketch11.addGeometry(Part.Circle(Vector(3, 80.8, 0), Vector(0, 0, 1), 1.75), False)
sketch11.addConstraint(Sketcher.Constraint("Diameter", 0, Q("3.5 mm")))
sketch11.addConstraint(Sketcher.Constraint("DistanceX", -1, 1, 0, 3, Q("3 mm")))
sketch11.addConstraint(Sketcher.Constraint("DistanceY", -1, 1, 0, 3, Q("80.8 mm")))
sketch11.setExpression("Constraints[0]", "Params.sketch11_diameter")
pad3 = doc.addObject("PartDesign::Pad", "Pad002")
body.addObject(pad3)
pad3.Profile = sketch11
pad3.setExpression("Length", "Params.pad3_length")
pad3.Reversed = True

# Sketch on XY plane
sketch12 = doc.addObject("Sketcher::SketchObject", "Sketch011")
body.addObject(sketch12)
sketch12.AttachmentSupport = (doc.XY_Plane, [""])
sketch12.MapMode = "FlatFace"
sketch12.AttachmentOffset = App.Placement(Vector(0, 0, 6.65), App.Rotation())
sketch12.addGeometry(Part.Circle(Vector(3, 80.8, 0), Vector(0, 0, 1), 1.05), False)
sketch12.addConstraint(Sketcher.Constraint("Diameter", 0, Q("2.1 mm")))
sketch12.addConstraint(Sketcher.Constraint("DistanceX", -1, 1, 0, 3, Q("3 mm")))
sketch12.addConstraint(Sketcher.Constraint("DistanceY", -1, 1, 0, 3, Q("80.8 mm")))
sketch12.setExpression("Constraints[0]", "Params.sketch12_diameter")
pocket9 = doc.addObject("PartDesign::Pocket", "Pocket008")
body.addObject(pocket9)
pocket9.Profile = sketch12
pocket9.setExpression("Length", "Params.pocket9_length")
doc.recompute()

datumplane2 = doc.addObject("PartDesign::Plane", "DatumPlane001")
body.addObject(datumplane2)
datumplane2.AttachmentSupport = (doc.YZ_Plane, [""])
datumplane2.MapMode = "FlatFace"
datumplane2.AttachmentOffset = App.Placement(Vector(0, 0, 33.5), App.Rotation())
mirrored2 = doc.addObject("PartDesign::Mirrored", "Mirrored001")
body.addObject(mirrored2)
mirrored2.Originals = [pad3, pocket9]
mirrored2.MirrorPlane = (datumplane2, [""])
body.Tip = mirrored2
doc.recompute()

linearpattern = doc.addObject("PartDesign::LinearPattern", "LinearPattern")
body.addObject(linearpattern)
linearpattern.Originals = [pocket8, pad3, pocket9]
linearpattern.Direction = (doc.Y_Axis, [""])
linearpattern.Mode = "offset"
linearpattern.setExpression("Offset", "Params.linearpattern_pitch")
linearpattern.Occurrences = 2
linearpattern.Reversed = True
body.Tip = linearpattern

# Sketch on XY plane
sketch13 = doc.addObject("Sketcher::SketchObject", "Sketch012")
body.addObject(sketch13)
sketch13.AttachmentSupport = (doc.XY_Plane, [""])
sketch13.MapMode = "FlatFace"
sketch13.AttachmentOffset = App.Placement(Vector(0, 0, 4), App.Rotation())
sketch13.addGeometry(Part.Circle(Vector(64, 12, 0), Vector(0, 0, 1), 1.75), False)
sketch13.addConstraint(Sketcher.Constraint("Diameter", 0, Q("3.5 mm")))
sketch13.addConstraint(Sketcher.Constraint("DistanceX", -1, 1, 0, 3, Q("64 mm")))
sketch13.addConstraint(Sketcher.Constraint("DistanceY", -1, 1, 0, 3, Q("12 mm")))
sketch13.setExpression("Constraints[0]", "Params.sketch13_diameter")
pad4 = doc.addObject("PartDesign::Pad", "Pad003")
body.addObject(pad4)
pad4.Profile = sketch13
pad4.setExpression("Length", "Params.pad4_length")
pad4.Reversed = True

# Sketch on XY plane
sketch14 = doc.addObject("Sketcher::SketchObject", "Sketch013")
body.addObject(sketch14)
sketch14.AttachmentSupport = (doc.XY_Plane, [""])
sketch14.MapMode = "FlatFace"
sketch14.AttachmentOffset = App.Placement(Vector(0, 0, 6.65), App.Rotation())
sketch14.addGeometry(Part.Circle(Vector(64, 12, 0), Vector(0, 0, 1), 1.05), False)
sketch14.addConstraint(Sketcher.Constraint("Diameter", 0, Q("2.1 mm")))
sketch14.addConstraint(Sketcher.Constraint("DistanceX", -1, 1, 0, 3, Q("64 mm")))
sketch14.addConstraint(Sketcher.Constraint("DistanceY", -1, 1, 0, 3, Q("12 mm")))
sketch14.setExpression("Constraints[0]", "Params.sketch14_diameter")
pocket10 = doc.addObject("PartDesign::Pocket", "Pocket009")
body.addObject(pocket10)
pocket10.Profile = sketch14
pocket10.setExpression("Length", "Params.pocket10_length")

# Sketch on YZ plane
sketch15 = doc.addObject("Sketcher::SketchObject", "Sketch014")
body.addObject(sketch15)
sketch15.AttachmentSupport = (doc.YZ_Plane, [""])
sketch15.MapMode = "FlatFace"
sketch15.AttachmentOffset = App.Placement(Vector(0, 0, 61.9), App.Rotation())
sketch15.addGeometry(Part.LineSegment(Vector(9.8, 5.65, 0), Vector(14.2, 5.65, 0)), False)
sketch15.addGeometry(Part.LineSegment(Vector(14.2, 5.65, 0), Vector(14.2, 4, 0)), False)
sketch15.addGeometry(Part.LineSegment(Vector(14.2, 4, 0), Vector(9.8, 4, 0)), False)
sketch15.addGeometry(Part.LineSegment(Vector(9.8, 4, 0), Vector(9.8, 5.65, 0)), False)
sketch15.addConstraint(Sketcher.Constraint("Coincident", 0, 2, 1, 1))
sketch15.addConstraint(Sketcher.Constraint("Coincident", 1, 2, 2, 1))
sketch15.addConstraint(Sketcher.Constraint("Coincident", 2, 2, 3, 1))
sketch15.addConstraint(Sketcher.Constraint("Coincident", 3, 2, 0, 1))
sketch15.addConstraint(Sketcher.Constraint("Horizontal", 0))
sketch15.addConstraint(Sketcher.Constraint("Vertical", 1))
sketch15.addConstraint(Sketcher.Constraint("Horizontal", 2))
sketch15.addConstraint(Sketcher.Constraint("Vertical", 3))
sketch15.addConstraint(Sketcher.Constraint("DistanceX", 0, 1, 0, 2, Q("4.4 mm")))
sketch15.addConstraint(Sketcher.Constraint("DistanceY", -1, 1, 1, 2, Q("4 mm")))
sketch15.addConstraint(Sketcher.Constraint("DistanceY", 1, 2, 1, 1, Q("1.65 mm")))
sketch15.addConstraint(Sketcher.Constraint("DistanceX", -1, 1, 0, 2, Q("14.2 mm")))
sketch15.setExpression("Constraints[8]", "Params.sketch15_width")
sketch15.setExpression("Constraints[10]", "Params.sketch15_height")
pocket11 = doc.addObject("PartDesign::Pocket", "Pocket010")
body.addObject(pocket11)
pocket11.Profile = sketch15
pocket11.setExpression("Length", "Params.pocket11_length")
pocket11.Reversed = True

doc.recompute()
